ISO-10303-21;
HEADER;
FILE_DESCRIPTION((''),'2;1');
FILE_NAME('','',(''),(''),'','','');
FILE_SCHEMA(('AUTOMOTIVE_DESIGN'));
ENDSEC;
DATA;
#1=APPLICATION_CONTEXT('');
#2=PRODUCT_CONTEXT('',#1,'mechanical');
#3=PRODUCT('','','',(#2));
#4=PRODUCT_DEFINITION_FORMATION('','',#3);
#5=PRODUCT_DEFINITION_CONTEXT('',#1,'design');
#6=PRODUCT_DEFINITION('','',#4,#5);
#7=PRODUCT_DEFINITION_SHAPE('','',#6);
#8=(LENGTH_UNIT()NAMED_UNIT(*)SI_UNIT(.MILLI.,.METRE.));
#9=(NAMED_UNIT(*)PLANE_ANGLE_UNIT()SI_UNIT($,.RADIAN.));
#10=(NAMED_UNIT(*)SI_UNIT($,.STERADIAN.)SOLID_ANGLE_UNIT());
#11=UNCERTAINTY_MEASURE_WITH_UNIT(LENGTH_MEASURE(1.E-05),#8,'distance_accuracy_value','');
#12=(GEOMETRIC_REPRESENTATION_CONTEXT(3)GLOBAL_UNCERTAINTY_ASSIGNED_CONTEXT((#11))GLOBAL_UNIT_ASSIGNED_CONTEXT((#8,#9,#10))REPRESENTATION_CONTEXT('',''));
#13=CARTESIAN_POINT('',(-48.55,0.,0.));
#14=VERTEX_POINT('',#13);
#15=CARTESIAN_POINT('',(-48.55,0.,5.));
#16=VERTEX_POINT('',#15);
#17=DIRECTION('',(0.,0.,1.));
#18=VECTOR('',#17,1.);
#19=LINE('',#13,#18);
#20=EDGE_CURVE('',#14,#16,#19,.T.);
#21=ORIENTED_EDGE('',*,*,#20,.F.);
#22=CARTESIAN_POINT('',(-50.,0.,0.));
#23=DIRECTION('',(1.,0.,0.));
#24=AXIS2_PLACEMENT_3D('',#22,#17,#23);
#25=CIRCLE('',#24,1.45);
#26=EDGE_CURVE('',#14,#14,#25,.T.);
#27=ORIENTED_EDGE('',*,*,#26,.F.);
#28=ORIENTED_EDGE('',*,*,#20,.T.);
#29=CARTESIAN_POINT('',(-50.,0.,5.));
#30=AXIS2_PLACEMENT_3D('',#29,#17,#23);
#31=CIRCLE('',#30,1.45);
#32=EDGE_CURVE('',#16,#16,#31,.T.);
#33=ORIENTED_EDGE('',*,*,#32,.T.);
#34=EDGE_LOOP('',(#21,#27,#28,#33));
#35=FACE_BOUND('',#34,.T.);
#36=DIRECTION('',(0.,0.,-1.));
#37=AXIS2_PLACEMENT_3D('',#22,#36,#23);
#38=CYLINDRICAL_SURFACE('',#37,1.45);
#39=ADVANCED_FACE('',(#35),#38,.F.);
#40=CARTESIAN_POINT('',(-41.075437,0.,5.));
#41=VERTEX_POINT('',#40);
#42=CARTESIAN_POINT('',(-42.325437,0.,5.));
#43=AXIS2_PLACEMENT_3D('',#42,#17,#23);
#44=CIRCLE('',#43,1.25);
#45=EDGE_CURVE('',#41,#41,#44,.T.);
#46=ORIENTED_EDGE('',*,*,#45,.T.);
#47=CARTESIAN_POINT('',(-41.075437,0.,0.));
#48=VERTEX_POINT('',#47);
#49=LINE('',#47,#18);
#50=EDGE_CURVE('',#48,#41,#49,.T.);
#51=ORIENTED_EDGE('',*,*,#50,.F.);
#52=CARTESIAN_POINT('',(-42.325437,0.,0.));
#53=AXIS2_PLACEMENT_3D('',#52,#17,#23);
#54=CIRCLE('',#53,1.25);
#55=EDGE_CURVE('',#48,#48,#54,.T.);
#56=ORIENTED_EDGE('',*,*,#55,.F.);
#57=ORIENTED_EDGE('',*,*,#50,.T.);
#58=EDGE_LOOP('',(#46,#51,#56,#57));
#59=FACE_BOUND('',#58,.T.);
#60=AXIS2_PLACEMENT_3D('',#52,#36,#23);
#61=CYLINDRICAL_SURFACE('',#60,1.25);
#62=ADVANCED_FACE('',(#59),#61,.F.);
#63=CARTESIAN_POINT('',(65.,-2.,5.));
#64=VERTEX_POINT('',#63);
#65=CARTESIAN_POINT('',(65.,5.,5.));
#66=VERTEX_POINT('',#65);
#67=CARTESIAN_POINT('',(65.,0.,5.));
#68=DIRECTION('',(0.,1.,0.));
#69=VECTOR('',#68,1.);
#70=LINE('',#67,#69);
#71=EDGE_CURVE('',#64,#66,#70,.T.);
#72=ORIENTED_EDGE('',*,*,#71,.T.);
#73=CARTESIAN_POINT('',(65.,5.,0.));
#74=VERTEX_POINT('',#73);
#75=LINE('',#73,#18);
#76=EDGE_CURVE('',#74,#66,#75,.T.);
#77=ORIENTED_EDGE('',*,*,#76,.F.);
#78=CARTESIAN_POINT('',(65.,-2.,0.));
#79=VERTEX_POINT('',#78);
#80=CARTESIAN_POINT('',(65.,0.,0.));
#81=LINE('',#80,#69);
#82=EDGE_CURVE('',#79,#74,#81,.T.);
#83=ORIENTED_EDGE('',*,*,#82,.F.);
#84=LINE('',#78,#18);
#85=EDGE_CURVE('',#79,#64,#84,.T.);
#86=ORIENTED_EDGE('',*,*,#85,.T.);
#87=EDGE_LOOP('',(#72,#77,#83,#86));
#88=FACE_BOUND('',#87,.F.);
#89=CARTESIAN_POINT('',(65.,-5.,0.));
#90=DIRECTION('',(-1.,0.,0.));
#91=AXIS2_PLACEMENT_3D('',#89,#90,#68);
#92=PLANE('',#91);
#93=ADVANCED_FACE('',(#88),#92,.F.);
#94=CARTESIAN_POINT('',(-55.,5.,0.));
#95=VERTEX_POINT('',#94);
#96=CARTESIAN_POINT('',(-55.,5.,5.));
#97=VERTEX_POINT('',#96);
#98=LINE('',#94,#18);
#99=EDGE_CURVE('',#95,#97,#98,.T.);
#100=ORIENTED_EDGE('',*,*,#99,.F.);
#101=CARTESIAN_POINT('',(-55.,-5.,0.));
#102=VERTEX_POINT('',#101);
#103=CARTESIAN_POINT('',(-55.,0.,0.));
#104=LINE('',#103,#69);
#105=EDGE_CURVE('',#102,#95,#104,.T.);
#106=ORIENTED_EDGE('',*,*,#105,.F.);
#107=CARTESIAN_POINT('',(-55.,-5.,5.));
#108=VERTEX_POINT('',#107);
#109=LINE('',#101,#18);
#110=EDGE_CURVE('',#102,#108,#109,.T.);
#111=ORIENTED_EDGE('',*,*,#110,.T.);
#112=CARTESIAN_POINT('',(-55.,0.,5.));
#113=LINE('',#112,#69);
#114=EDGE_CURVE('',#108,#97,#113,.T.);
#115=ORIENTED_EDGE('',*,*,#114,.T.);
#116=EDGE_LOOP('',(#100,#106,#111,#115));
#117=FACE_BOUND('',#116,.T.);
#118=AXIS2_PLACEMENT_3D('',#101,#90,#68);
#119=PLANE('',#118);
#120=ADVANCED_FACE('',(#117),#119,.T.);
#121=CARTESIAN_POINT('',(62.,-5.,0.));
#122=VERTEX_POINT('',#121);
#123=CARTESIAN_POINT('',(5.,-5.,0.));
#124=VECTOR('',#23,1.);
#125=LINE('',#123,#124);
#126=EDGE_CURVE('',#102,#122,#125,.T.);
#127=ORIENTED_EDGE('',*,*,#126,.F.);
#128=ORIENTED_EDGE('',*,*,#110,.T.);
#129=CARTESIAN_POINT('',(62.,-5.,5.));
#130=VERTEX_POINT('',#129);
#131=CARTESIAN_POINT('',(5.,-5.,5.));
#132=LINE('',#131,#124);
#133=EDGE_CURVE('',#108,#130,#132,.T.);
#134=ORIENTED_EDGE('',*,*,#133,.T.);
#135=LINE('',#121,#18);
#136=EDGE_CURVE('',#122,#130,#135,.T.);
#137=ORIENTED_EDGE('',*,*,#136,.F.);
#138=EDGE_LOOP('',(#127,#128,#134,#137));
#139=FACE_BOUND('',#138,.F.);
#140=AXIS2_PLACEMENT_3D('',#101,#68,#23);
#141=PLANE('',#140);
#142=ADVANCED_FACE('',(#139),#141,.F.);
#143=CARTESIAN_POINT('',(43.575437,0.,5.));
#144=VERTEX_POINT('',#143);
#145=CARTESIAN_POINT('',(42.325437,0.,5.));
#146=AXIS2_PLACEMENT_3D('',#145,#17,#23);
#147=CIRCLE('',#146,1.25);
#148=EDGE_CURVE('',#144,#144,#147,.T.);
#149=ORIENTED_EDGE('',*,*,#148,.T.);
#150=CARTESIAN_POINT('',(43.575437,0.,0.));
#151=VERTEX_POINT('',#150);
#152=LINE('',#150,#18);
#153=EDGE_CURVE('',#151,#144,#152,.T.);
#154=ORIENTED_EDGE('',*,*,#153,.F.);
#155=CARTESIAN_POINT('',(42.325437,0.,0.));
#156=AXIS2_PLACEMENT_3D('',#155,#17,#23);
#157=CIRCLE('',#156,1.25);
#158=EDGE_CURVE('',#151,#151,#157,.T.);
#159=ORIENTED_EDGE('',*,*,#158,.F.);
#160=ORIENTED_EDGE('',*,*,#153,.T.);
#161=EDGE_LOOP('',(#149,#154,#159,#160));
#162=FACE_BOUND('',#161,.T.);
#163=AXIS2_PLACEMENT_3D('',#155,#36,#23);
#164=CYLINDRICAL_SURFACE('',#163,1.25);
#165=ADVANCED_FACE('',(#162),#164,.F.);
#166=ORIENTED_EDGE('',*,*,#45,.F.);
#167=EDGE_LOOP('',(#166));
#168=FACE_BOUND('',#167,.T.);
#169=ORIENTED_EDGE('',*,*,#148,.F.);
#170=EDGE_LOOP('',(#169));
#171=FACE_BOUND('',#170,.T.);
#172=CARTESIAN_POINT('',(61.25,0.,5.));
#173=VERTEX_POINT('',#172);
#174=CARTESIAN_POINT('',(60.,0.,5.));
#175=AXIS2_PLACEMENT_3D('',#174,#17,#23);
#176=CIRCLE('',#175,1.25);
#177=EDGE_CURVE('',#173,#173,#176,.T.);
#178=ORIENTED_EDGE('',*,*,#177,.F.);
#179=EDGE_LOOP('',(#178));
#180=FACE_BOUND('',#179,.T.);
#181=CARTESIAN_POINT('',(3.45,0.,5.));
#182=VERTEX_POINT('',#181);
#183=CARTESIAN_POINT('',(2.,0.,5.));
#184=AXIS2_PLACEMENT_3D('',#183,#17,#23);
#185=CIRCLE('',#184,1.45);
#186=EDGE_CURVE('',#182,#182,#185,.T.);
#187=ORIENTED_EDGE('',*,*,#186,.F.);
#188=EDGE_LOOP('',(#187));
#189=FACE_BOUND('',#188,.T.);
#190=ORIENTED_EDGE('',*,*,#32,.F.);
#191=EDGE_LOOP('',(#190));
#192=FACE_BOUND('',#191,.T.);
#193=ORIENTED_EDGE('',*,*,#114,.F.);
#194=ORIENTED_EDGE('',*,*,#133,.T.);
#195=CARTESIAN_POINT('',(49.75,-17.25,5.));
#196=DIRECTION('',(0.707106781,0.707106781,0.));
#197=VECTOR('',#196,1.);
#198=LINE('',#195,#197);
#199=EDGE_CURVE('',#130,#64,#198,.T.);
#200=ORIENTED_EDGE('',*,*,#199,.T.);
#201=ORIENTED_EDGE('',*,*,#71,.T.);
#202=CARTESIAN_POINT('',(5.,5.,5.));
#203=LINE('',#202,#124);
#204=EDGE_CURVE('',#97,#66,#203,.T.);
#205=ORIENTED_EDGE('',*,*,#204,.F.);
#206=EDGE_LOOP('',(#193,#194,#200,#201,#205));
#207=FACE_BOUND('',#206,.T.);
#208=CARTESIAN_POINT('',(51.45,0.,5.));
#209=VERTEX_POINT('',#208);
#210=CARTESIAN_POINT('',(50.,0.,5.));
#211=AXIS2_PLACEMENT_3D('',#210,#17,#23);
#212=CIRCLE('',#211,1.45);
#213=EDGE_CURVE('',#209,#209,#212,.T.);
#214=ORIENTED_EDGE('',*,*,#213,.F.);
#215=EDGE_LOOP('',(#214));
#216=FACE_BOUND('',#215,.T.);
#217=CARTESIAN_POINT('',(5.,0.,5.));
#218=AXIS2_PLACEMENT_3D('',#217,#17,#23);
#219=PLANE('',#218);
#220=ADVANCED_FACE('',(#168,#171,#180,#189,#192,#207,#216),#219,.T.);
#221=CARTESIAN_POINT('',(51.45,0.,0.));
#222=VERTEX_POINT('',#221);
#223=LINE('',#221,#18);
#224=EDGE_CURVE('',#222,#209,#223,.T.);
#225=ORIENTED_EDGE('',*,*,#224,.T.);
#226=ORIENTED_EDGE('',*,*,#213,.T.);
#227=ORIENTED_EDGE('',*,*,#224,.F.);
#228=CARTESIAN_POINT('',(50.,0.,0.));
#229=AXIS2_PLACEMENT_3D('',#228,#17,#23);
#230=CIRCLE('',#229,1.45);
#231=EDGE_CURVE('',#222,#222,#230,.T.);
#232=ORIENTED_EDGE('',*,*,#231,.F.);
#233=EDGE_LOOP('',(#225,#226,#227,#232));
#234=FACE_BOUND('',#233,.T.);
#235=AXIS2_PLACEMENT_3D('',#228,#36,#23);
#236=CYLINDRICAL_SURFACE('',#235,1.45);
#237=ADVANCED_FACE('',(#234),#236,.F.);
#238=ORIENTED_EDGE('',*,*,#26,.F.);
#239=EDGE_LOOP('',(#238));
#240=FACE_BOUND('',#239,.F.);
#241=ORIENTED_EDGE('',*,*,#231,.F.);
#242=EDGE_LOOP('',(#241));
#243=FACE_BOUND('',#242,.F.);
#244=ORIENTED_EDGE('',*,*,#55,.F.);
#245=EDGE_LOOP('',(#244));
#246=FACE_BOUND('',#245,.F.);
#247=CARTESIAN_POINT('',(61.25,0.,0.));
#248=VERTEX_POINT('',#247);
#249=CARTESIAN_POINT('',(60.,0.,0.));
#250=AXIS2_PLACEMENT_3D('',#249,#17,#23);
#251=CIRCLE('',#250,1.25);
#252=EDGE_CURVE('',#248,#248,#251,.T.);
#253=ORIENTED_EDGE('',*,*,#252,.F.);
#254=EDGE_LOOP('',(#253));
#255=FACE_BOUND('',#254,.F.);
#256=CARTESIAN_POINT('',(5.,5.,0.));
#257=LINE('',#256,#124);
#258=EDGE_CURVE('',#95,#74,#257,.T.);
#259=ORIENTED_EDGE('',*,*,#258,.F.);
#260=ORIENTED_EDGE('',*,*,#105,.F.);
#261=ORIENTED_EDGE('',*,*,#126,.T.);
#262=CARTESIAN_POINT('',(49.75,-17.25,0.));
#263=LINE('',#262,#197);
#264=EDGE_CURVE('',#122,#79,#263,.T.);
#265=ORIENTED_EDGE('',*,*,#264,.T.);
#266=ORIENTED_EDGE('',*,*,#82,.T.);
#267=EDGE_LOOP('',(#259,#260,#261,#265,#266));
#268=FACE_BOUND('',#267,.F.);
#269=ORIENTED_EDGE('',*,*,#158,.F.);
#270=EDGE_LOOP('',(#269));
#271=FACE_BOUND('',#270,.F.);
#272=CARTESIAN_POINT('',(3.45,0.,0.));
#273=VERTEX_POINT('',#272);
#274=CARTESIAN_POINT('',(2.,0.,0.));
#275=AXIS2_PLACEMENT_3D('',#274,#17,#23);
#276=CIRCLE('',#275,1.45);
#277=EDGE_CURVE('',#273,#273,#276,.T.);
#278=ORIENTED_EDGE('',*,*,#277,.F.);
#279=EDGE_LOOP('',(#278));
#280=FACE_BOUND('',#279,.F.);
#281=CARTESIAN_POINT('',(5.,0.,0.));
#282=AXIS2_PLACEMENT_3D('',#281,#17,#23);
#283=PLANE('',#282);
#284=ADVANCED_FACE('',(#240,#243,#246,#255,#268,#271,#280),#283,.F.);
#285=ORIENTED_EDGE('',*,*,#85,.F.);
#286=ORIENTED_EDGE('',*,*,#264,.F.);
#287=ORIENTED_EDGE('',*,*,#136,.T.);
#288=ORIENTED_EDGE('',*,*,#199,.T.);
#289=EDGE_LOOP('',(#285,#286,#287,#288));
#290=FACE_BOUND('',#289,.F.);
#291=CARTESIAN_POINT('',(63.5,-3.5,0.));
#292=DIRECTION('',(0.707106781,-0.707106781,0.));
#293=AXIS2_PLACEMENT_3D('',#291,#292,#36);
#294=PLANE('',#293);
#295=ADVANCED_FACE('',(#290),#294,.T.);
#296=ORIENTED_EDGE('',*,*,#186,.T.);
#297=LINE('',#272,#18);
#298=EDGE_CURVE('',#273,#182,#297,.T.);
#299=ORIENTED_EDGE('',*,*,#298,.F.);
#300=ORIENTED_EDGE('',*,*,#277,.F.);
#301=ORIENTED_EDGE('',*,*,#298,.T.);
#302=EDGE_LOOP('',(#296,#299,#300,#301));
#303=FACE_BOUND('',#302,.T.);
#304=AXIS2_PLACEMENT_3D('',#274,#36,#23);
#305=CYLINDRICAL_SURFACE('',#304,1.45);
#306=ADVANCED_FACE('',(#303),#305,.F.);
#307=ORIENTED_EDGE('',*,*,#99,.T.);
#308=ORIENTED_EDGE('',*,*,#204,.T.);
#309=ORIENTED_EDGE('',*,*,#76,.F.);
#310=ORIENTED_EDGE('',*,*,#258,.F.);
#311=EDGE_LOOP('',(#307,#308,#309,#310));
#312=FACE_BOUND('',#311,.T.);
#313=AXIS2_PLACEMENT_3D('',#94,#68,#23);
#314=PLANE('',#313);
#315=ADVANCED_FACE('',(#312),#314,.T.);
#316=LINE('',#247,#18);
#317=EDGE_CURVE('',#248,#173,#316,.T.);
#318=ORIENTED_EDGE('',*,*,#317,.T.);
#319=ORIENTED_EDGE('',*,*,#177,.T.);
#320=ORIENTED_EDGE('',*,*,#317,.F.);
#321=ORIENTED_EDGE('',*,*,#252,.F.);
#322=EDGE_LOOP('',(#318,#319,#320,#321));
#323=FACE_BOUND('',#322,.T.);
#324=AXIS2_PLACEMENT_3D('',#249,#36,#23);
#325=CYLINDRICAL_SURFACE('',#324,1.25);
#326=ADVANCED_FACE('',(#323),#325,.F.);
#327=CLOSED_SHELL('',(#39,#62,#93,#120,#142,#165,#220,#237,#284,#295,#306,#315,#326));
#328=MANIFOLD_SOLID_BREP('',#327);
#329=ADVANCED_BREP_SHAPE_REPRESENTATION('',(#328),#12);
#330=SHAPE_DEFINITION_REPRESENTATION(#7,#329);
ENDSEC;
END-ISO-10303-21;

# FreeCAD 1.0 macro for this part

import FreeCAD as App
import Part
import Sketcher

V = App.Vector
Q = App.Units.Quantity


def edges_at(feature, points):
    """Names of the edges that pass closest to the given points."""
    edges = feature.Shape.Edges
    near = lambda p: min(range(len(edges)), key=lambda i: edges[i].distToShape(Part.Vertex(*p))[0])
    return sorted({f"Edge{near(p) + 1}" for p in points})


def add_polygon(sketch, points):
    """Adds a closed chain of lines whose ends are joined by coincident constraints."""
    first, n = sketch.GeometryCount, len(points)
    for a, b in zip(points, points[1:] + points[:1]):
        sketch.addGeometry(Part.LineSegment(App.Vector(*a, 0), App.Vector(*b, 0)), False)
    for i in range(n):
        sketch.addConstraint(Sketcher.Constraint("Coincident", first + i, 2, first + (i + 1) % n, 1))

doc = App.newDocument("Part")
body = doc.addObject("PartDesign::Body", "Body")

# Sketch on XY plane
sketch1 = body.newObject("Sketcher::SketchObject", "Sketch")
sketch1.AttachmentSupport = (doc.getObject("XY_Plane"), [""])
sketch1.MapMode = "FlatFace"
add_polygon(sketch1, [(-55, 5), (-55, -5), (65, -5), (65, 5)])  # lines 0-3
sketch1.addGeometry(Part.Circle(V(-50, 0, 0), V(0, 0, 1), 1.4), False)  # 4
sketch1.addGeometry(Part.Circle(V(-42.3, 0, 0), V(0, 0, 1), 1.2), False)  # 5
sketch1.addGeometry(Part.Circle(V(2, 0, 0), V(0, 0, 1), 1.4), False)  # 6
sketch1.addGeometry(Part.Circle(V(42.3, 0, 0), V(0, 0, 1), 1.2), False)  # 7
sketch1.addGeometry(Part.Circle(V(50, 0, 0), V(0, 0, 1), 1.4), False)  # 8
sketch1.addGeometry(Part.Circle(V(60, 0, 0), V(0, 0, 1), 1.2), False)  # 9
sketch1.addConstraint([
    Sketcher.Constraint("Vertical", 0),
    Sketcher.Constraint("Horizontal", 1),
    Sketcher.Constraint("Vertical", 2),
    Sketcher.Constraint("Horizontal", 3),
    Sketcher.Constraint("Equal", 4, 6),
    Sketcher.Constraint("Equal", 5, 7),
    Sketcher.Constraint("Equal", 6, 8),
    Sketcher.Constraint("Equal", 7, 9),
    Sketcher.Constraint("Symmetric", 5, 3, 7, 3, -1, 1),
    Sketcher.Constraint("Symmetric", 4, 3, 8, 3, -1, 1),
    Sketcher.Constraint("PointOnObject", 4, 3, -1),
    Sketcher.Constraint("PointOnObject", 5, 3, -1),
    Sketcher.Constraint("PointOnObject", 6, 3, -1),
    Sketcher.Constraint("PointOnObject", 9, 3, -1),
    Sketcher.Constraint("Diameter", 4, Q("2.9 mm")),
    Sketcher.Constraint("Diameter", 5, Q("2.5 mm")),
    Sketcher.Constraint("DistanceX", 1, 1, 1, 2, Q("120 mm")),
    Sketcher.Constraint("DistanceY", 0, 2, 0, 1, Q("10 mm")),
    Sketcher.Constraint("DistanceX", 4, 3, -1, 1, Q("50 mm")),
    Sketcher.Constraint("DistanceX", -1, 1, 6, 3, Q("2 mm")),
    Sketcher.Constraint("DistanceX", -1, 1, 9, 3, Q("60 mm")),
    Sketcher.Constraint("DistanceX", 0, 2, -1, 1, Q("55 mm")),
    Sketcher.Constraint("DistanceY", 0, 2, -1, 1, Q("5 mm")),
    Sketcher.Constraint("DistanceX", 5, 3, -1, 1, Q("42.325437 mm")),
])
pad1 = body.newObject("PartDesign::Pad", "Pad")
pad1.Profile = sketch1
pad1.Length = 5
doc.recompute()

chamfer = body.newObject("PartDesign::Chamfer", "Chamfer")
chamfer.Base = (pad1, edges_at(pad1, [(65, -5, 2.5)]))
chamfer.Size = 3

doc.recompute()
